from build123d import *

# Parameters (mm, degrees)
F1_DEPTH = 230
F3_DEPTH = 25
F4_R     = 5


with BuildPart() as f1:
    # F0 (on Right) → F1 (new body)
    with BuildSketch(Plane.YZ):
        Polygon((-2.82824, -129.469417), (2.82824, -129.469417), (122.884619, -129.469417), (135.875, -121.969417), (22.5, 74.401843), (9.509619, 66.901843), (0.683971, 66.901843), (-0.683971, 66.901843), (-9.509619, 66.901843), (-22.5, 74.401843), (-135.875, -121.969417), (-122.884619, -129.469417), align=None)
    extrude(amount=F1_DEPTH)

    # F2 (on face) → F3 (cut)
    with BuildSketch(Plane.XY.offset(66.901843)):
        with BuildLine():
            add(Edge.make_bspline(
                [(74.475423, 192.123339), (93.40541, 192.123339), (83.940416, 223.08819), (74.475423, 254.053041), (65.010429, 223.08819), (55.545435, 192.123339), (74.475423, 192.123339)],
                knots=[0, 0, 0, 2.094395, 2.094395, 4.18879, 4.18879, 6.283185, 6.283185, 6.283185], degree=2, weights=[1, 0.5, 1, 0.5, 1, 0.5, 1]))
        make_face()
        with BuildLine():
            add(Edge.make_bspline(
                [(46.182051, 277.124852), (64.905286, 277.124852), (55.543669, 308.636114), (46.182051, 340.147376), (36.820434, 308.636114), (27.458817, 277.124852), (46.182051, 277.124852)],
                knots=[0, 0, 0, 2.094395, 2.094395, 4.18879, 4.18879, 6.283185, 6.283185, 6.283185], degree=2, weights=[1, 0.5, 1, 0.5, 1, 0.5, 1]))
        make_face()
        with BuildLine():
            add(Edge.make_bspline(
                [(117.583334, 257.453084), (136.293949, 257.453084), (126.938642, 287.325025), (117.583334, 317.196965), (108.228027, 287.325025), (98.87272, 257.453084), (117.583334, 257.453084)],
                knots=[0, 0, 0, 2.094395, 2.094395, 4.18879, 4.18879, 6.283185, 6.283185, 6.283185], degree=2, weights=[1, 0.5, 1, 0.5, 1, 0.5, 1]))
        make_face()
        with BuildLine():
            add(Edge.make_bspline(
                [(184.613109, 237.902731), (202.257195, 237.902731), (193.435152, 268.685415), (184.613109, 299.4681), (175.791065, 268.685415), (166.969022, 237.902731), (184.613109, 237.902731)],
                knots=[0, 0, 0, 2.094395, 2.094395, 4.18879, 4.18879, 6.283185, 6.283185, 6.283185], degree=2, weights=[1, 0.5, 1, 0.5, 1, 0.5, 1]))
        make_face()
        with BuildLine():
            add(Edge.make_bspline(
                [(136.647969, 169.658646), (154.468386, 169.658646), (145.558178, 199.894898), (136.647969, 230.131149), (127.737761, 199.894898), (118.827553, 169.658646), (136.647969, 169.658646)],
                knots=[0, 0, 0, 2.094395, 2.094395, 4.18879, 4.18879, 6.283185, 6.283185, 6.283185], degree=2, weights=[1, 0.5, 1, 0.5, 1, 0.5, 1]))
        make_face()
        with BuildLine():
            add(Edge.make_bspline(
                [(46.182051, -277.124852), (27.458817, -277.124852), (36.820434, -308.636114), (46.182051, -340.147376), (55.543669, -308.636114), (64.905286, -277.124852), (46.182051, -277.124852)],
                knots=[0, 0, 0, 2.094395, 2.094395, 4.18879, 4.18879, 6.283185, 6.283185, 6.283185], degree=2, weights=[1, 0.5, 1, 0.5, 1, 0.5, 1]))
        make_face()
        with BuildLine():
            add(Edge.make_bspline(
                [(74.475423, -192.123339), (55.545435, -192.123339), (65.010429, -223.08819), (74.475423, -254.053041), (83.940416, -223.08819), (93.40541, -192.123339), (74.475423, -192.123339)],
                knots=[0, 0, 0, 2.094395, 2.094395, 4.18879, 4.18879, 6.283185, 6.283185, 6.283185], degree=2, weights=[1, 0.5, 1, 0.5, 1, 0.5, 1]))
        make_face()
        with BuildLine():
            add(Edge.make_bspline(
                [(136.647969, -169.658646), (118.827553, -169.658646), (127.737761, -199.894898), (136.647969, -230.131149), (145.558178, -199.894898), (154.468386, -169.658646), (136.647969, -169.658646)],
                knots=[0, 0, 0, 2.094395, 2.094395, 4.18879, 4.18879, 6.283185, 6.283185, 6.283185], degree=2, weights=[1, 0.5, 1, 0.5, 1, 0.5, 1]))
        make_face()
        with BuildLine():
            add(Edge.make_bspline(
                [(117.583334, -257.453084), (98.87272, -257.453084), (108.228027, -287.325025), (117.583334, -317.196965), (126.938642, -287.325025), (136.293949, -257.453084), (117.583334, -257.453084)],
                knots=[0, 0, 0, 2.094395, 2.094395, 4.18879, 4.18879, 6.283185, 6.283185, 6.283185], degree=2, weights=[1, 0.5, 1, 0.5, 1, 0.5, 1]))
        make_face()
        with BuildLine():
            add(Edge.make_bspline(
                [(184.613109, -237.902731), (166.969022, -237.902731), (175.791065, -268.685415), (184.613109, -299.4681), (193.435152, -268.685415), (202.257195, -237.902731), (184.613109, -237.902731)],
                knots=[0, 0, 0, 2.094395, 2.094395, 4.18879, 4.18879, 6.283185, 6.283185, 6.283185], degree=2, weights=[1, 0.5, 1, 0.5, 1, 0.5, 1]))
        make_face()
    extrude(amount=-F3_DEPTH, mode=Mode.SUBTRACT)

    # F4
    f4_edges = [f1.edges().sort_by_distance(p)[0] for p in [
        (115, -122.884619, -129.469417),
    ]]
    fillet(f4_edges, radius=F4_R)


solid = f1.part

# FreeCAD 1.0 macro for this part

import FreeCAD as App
import Part
import Sketcher

V = App.Vector
Q = App.Units.Quantity


def edges_at(feature, points):
    """Names of the edges that pass closest to the given points."""
    edges = feature.Shape.Edges
    near = lambda p: min(range(len(edges)), key=lambda i: edges[i].distToShape(Part.Vertex(*p))[0])
    return sorted({f"Edge{near(p) + 1}" for p in points})

doc = App.newDocument("Part")
params = doc.addObject("Spreadsheet::Sheet", "Params")
for row, (alias, value) in enumerate([
    ("sketch1_length", "15 mm"),
    ("sketch1_length2", "226.75 mm"),
    ("pad1_length", "230 mm"),
    ("pocket1_length", "25 mm"),
    ("fillet_radius", "5 mm"),
], start=1):
    params.set(f"A{row}", alias)
    params.set(f"B{row}", "=" + value)
    params.setAlias(f"B{row}", alias)

body = doc.addObject("PartDesign::Body", "Body")

# Sketch on YZ plane
sketch1 = body.newObject("Sketcher::SketchObject", "Sketch")
sketch1.AttachmentSupport = (doc.getObject("YZ_Plane"), [""])
sketch1.MapMode = "FlatFace"
sketch1.addGeometry([
    Part.LineSegment(V(123, -129, 0), V(136, -122, 0)),  # 0
    Part.LineSegment(V(136, -122, 0), V(22, 74, 0)),  # 1
    Part.LineSegment(V(22, 74, 0), V(10, 67, 0)),  # 2
    Part.LineSegment(V(10, 67, 0), V(-10, 67, 0)),  # 3
    Part.LineSegment(V(-10, 67, 0), V(-22, 74, 0)),  # 4
    Part.LineSegment(V(-22, 74, 0), V(-136, -122, 0)),  # 5
    Part.LineSegment(V(-136, -122, 0), V(-123, -129, 0)),  # 6
    Part.LineSegment(V(-123, -129, 0), V(123, -129, 0)),  # 7
], False)
sketch1.addConstraint([
    Sketcher.Constraint("Coincident", 0, 2, 1, 1),
    Sketcher.Constraint("Coincident", 1, 2, 2, 1),
    Sketcher.Constraint("Coincident", 2, 2, 3, 1),
    Sketcher.Constraint("Coincident", 3, 2, 4, 1),
    Sketcher.Constraint("Coincident", 4, 2, 5, 1),
    Sketcher.Constraint("Coincident", 5, 2, 6, 1),
    Sketcher.Constraint("Coincident", 6, 2, 7, 1),
    Sketcher.Constraint("Coincident", 7, 2, 0, 1),
    Sketcher.Constraint("Horizontal", 3),
    Sketcher.Constraint("Horizontal", 7),
    Sketcher.Constraint("Symmetric", 1, 2, 4, 2, -2),
    Sketcher.Constraint("Symmetric", 0, 2, 5, 2, -2),
    Sketcher.Constraint("Perpendicular", 0, 1),
    Sketcher.Constraint("Perpendicular", 1, 2),
    Sketcher.Constraint("Perpendicular", 4, 5),
    Sketcher.Constraint("Perpendicular", 5, 6),
    Sketcher.Constraint("Equal", 0, 2),
    Sketcher.Constraint("Angle", 0, Q("30 deg")),
    Sketcher.Constraint("Distance", 0, Q("15 mm")),
    Sketcher.Constraint("DistanceX", 4, 2, 1, 2, Q("45 mm")),
    Sketcher.Constraint("Distance", 1, Q("226.75 mm")),
    Sketcher.Constraint("DistanceY", 0, 2, -1, 1, Q("121.969417 mm")),
])
sketch1.setExpression("Constraints[18]", "Params.sketch1_length")
sketch1.setExpression("Constraints[20]", "Params.sketch1_length2")
pad1 = body.newObject("PartDesign::Pad", "Pad")
pad1.Profile = sketch1
pad1.setExpression("Length", "Params.pad1_length")

# Sketch on XY plane
sketch2 = body.newObject("Sketcher::SketchObject", "Sketch001")
sketch2.AttachmentSupport = (doc.getObject("XY_Plane"), [""])
sketch2.MapMode = "FlatFace"
sketch2.AttachmentOffset = App.Placement(V(0, 0, 66.901843), App.Rotation())
sketch2.addGeometry([
    Part.BSplineCurve([V(74.475423, 192.123339, 0), V(93.40541, 192.123339, 0), V(83.940416, 223.08819, 0), V(74.475423, 254.053041, 0), V(65.010429, 223.08819, 0), V(55.545435, 192.123339, 0), V(74.475423, 192.123339, 0)], [3, 2, 2, 3], [0, 2.094395, 4.18879, 6.283185], False, 2, [1, 0.5, 1, 0.5, 1, 0.5, 1], False),  # 0
    Part.BSplineCurve([V(46.182051, 277.124852, 0), V(64.905286, 277.124852, 0), V(55.543669, 308.636114, 0), V(46.182051, 340.147376, 0), V(36.820434, 308.636114, 0), V(27.458817, 277.124852, 0), V(46.182051, 277.124852, 0)], [3, 2, 2, 3], [0, 2.094395, 4.18879, 6.283185], False, 2, [1, 0.5, 1, 0.5, 1, 0.5, 1], False),  # 1
    Part.BSplineCurve([V(117.583334, 257.453084, 0), V(136.293949, 257.453084, 0), V(126.938642, 287.325025, 0), V(117.583334, 317.196965, 0), V(108.228027, 287.325025, 0), V(98.87272, 257.453084, 0), V(117.583334, 257.453084, 0)], [3, 2, 2, 3], [0, 2.094395, 4.18879, 6.283185], False, 2, [1, 0.5, 1, 0.5, 1, 0.5, 1], False),  # 2
    Part.BSplineCurve([V(184.613109, 237.902731, 0), V(202.257195, 237.902731, 0), V(193.435152, 268.685415, 0), V(184.613109, 299.4681, 0), V(175.791065, 268.685415, 0), V(166.969022, 237.902731, 0), V(184.613109, 237.902731, 0)], [3, 2, 2, 3], [0, 2.094395, 4.18879, 6.283185], False, 2, [1, 0.5, 1, 0.5, 1, 0.5, 1], False),  # 3
    Part.BSplineCurve([V(136.647969, 169.658646, 0), V(154.468386, 169.658646, 0), V(145.558178, 199.894898, 0), V(136.647969, 230.131149, 0), V(127.737761, 199.894898, 0), V(118.827553, 169.658646, 0), V(136.647969, 169.658646, 0)], [3, 2, 2, 3], [0, 2.094395, 4.18879, 6.283185], False, 2, [1, 0.5, 1, 0.5, 1, 0.5, 1], False),  # 4
    Part.BSplineCurve([V(46.182051, -277.124852, 0), V(27.458817, -277.124852, 0), V(36.820434, -308.636114, 0), V(46.182051, -340.147376, 0), V(55.543669, -308.636114, 0), V(64.905286, -277.124852, 0), V(46.182051, -277.124852, 0)], [3, 2, 2, 3], [0, 2.094395, 4.18879, 6.283185], False, 2, [1, 0.5, 1, 0.5, 1, 0.5, 1], False),  # 5
    Part.BSplineCurve([V(74.475423, -192.123339, 0), V(55.545435, -192.123339, 0), V(65.010429, -223.08819, 0), V(74.475423, -254.053041, 0), V(83.940416, -223.08819, 0), V(93.40541, -192.123339, 0), V(74.475423, -192.123339, 0)], [3, 2, 2, 3], [0, 2.094395, 4.18879, 6.283185], False, 2, [1, 0.5, 1, 0.5, 1, 0.5, 1], False),  # 6
    Part.BSplineCurve([V(136.647969, -169.658646, 0), V(118.827553, -169.658646, 0), V(127.737761, -199.894898, 0), V(136.647969, -230.131149, 0), V(145.558178, -199.894898, 0), V(154.468386, -169.658646, 0), V(136.647969, -169.658646, 0)], [3, 2, 2, 3], [0, 2.094395, 4.18879, 6.283185], False, 2, [1, 0.5, 1, 0.5, 1, 0.5, 1], False),  # 7
    Part.BSplineCurve([V(117.583334, -257.453084, 0), V(98.87272, -257.453084, 0), V(108.228027, -287.325025, 0), V(117.583334, -317.196965, 0), V(126.938642, -287.325025, 0), V(136.293949, -257.453084, 0), V(117.583334, -257.453084, 0)], [3, 2, 2, 3], [0, 2.094395, 4.18879, 6.283185], False, 2, [1, 0.5, 1, 0.5, 1, 0.5, 1], False),  # 8
    Part.BSplineCurve([V(184.613109, -237.902731, 0), V(166.969022, -237.902731, 0), V(175.791065, -268.685415, 0), V(184.613109, -299.4681, 0), V(193.435152, -268.685415, 0), V(202.257195, -237.902731, 0), V(184.613109, -237.902731, 0)], [3, 2, 2, 3], [0, 2.094395, 4.18879, 6.283185], False, 2, [1, 0.5, 1, 0.5, 1, 0.5, 1], False),  # 9
], False)
sketch2.addConstraint([
    Sketcher.Constraint("Block", 0),
    Sketcher.Constraint("Block", 1),
    Sketcher.Constraint("Block", 2),
    Sketcher.Constraint("Block", 3),
    Sketcher.Constraint("Block", 4),
    Sketcher.Constraint("Block", 5),
    Sketcher.Constraint("Block", 6),
    Sketcher.Constraint("Block", 7),
    Sketcher.Constraint("Block", 8),
    Sketcher.Constraint("Block", 9),
])
pocket1 = body.newObject("PartDesign::Pocket", "Pocket")
pocket1.Profile = sketch2
pocket1.setExpression("Length", "Params.pocket1_length")
doc.recompute()

fillet = body.newObject("PartDesign::Fillet", "Fillet")
fillet.Base = (pocket1, edges_at(pocket1, [(115, -122.885, -129.469)]))
fillet.setExpression("Radius", "Params.fillet_radius")

doc.recompute()
